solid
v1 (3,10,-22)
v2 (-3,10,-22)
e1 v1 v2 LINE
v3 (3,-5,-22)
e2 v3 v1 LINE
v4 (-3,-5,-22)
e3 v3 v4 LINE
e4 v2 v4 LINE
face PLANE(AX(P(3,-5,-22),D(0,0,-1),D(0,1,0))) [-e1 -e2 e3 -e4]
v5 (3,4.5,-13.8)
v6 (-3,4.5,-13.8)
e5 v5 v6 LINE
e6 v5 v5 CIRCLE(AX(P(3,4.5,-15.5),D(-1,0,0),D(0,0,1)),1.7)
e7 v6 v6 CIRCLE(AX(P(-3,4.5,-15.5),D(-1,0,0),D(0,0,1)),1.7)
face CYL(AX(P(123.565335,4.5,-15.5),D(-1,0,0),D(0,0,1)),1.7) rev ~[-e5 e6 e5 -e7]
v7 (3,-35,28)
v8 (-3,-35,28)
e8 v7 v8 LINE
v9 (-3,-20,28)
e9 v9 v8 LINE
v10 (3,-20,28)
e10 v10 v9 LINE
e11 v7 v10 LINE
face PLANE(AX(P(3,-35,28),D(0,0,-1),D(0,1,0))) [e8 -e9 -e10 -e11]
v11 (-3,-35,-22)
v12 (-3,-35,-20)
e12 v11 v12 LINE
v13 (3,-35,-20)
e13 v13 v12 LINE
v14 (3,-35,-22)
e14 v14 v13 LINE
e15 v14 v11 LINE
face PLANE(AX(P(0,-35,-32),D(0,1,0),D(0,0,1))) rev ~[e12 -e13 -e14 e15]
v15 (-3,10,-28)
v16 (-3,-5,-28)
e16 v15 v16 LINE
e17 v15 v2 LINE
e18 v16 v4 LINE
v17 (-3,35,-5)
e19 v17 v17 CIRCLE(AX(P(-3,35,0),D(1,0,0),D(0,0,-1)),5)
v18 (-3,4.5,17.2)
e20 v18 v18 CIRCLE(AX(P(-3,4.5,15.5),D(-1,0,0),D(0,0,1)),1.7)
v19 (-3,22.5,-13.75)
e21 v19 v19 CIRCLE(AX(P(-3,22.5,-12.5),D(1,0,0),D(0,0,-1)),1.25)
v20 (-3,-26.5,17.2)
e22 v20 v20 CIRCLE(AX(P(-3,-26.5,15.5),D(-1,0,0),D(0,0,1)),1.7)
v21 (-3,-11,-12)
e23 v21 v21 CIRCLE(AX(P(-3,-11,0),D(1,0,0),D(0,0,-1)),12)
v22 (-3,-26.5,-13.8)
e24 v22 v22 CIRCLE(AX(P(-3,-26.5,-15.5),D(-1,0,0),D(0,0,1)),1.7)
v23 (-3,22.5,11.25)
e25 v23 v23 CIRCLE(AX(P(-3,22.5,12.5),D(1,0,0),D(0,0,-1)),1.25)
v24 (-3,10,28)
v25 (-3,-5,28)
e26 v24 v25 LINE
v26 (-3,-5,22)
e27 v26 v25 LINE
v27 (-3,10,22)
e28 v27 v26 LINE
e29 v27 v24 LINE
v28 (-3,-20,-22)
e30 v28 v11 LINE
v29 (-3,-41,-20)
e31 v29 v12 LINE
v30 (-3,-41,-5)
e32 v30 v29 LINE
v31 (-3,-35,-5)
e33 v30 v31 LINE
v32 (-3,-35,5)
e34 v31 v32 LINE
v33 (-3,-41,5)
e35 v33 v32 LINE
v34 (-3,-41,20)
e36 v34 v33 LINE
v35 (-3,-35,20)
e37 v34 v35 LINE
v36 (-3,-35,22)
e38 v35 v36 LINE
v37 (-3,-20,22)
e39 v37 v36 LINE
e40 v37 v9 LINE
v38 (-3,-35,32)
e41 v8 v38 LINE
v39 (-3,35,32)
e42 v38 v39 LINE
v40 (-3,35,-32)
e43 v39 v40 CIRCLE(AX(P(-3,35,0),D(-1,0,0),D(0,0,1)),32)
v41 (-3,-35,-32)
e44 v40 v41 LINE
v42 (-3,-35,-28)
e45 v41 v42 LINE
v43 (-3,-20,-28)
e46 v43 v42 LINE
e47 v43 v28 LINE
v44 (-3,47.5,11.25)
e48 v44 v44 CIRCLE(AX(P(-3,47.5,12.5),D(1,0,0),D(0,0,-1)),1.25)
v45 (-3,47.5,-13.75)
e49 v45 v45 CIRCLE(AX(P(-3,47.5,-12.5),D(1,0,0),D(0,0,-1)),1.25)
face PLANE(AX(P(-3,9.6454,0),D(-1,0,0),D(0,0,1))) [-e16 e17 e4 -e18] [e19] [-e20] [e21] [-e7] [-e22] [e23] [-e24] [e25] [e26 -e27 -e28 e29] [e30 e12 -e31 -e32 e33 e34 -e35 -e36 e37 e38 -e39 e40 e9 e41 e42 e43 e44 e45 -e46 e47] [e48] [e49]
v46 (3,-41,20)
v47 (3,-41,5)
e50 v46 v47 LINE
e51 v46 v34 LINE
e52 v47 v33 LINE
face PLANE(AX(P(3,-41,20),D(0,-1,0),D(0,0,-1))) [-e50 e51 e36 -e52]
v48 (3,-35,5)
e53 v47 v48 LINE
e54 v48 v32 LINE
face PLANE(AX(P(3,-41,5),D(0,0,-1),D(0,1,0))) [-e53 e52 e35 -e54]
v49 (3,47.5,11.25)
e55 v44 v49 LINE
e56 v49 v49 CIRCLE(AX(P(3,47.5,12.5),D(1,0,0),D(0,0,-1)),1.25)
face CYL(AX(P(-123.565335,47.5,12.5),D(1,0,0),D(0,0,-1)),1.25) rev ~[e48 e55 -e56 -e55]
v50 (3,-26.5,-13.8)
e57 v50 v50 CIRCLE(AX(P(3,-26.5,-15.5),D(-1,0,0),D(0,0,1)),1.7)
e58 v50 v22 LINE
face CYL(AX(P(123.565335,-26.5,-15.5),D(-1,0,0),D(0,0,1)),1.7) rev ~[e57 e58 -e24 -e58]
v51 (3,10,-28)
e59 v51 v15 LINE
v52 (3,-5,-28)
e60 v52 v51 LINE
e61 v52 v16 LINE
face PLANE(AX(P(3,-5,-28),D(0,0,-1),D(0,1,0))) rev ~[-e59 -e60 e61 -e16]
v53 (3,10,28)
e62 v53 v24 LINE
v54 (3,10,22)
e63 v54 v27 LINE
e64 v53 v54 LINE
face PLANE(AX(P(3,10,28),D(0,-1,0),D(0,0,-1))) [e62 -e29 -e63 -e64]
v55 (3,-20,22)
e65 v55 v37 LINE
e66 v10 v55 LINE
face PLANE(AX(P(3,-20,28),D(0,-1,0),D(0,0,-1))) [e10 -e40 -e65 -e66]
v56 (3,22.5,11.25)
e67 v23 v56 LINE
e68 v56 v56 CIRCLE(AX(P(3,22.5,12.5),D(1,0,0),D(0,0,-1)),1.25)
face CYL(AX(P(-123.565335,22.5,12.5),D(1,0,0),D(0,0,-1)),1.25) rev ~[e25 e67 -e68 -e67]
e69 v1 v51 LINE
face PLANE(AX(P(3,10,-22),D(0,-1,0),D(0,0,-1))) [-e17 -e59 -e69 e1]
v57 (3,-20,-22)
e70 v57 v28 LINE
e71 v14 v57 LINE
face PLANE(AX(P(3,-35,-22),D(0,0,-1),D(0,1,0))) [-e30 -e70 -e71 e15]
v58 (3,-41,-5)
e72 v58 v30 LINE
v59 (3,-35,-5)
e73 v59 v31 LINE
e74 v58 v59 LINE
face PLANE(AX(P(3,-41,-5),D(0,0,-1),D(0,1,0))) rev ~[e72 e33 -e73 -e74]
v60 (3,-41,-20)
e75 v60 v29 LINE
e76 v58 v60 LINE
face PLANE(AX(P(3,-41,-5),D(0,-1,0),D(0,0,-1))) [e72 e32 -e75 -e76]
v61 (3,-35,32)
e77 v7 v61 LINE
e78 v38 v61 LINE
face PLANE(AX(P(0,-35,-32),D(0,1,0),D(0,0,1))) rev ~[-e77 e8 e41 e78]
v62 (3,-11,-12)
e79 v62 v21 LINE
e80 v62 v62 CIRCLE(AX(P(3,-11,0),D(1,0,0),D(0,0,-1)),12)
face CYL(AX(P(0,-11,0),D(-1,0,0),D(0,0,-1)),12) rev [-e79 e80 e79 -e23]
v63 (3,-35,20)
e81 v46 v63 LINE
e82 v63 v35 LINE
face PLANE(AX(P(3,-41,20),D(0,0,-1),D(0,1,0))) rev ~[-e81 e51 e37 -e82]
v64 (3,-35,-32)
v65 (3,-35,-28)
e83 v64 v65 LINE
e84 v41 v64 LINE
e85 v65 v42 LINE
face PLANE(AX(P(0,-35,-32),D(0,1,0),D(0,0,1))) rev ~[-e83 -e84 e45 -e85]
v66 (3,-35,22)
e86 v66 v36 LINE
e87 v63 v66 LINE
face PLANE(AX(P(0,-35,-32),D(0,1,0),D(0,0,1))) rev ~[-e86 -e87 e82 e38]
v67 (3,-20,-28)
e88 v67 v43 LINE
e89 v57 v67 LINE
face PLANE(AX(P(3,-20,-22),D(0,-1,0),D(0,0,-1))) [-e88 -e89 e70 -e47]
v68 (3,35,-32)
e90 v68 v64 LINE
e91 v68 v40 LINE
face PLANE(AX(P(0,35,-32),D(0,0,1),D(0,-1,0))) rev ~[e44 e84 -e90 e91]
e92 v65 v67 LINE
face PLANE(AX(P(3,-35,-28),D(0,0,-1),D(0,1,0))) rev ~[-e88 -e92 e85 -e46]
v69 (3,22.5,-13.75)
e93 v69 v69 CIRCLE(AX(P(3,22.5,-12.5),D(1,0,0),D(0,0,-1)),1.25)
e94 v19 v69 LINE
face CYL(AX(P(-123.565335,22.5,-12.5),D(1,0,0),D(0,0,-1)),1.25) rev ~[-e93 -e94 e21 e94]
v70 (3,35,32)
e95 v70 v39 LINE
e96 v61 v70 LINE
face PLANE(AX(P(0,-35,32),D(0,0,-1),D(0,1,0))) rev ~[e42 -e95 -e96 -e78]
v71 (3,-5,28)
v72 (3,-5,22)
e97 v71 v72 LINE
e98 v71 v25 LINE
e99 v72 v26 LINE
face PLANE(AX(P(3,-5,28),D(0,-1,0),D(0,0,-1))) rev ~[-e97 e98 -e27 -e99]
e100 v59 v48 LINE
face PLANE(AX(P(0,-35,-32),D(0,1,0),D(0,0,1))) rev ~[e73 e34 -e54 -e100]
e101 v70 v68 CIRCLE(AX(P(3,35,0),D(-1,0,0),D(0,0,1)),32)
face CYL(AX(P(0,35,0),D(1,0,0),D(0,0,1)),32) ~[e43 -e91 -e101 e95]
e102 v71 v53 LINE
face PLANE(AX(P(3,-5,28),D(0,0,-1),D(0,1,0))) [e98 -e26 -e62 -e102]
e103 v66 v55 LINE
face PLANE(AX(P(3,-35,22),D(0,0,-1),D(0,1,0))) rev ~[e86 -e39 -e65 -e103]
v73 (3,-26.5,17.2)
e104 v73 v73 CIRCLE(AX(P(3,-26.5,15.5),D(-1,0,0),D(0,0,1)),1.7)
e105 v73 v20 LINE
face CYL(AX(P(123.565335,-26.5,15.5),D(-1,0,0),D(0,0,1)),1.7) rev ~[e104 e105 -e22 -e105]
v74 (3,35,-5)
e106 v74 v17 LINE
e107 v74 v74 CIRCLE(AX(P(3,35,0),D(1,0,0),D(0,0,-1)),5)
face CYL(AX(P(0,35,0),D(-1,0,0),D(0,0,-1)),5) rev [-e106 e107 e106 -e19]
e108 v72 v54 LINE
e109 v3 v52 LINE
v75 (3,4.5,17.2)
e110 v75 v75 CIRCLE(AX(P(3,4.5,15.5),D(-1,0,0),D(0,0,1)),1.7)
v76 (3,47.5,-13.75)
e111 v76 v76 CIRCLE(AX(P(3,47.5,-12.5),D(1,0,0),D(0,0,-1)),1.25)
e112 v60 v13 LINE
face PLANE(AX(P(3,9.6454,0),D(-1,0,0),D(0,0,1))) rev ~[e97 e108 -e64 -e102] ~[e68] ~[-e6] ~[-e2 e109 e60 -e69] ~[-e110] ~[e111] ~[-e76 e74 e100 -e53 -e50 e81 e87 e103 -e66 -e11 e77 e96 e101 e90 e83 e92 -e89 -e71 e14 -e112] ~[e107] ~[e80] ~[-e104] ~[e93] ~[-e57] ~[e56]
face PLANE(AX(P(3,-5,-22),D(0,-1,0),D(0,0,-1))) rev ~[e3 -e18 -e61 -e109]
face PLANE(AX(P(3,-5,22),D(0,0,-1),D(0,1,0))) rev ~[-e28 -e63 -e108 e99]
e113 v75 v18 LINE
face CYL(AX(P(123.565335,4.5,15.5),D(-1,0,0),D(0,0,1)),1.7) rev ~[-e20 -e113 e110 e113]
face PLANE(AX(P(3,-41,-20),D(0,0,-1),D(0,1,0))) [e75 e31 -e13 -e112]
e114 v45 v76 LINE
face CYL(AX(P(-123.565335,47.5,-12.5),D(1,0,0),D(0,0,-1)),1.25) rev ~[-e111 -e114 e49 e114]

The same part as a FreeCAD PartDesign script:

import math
import FreeCAD as App
import Part
import Sketcher
from FreeCAD import Vector
Q = App.Units.Quantity

doc = App.newDocument("Part")
params = doc.addObject("Spreadsheet::Sheet", "Params")
for row, (alias, value) in enumerate([
    ("sketch1_diameter", "24 mm"),
    ("sketch1_diameter2", "10 mm"),
    ("sketch1_radius", "32 mm"),
    ("sketch1_width", "70 mm"),
    ("pad1_length", "6 mm"),
    ("sketch2_diameter", "3.4 mm"),
    ("hole_diameter", "3.4 mm"),
    ("sketch3_diameter", "2.5 mm"),
    ("hole2_diameter", "2.5 mm"),
    ("sketch4_width", "15 mm"),
    ("sketch4_height", "6 mm"),
    ("sketch5_width", "6 mm"),
    ("sketch5_height", "15 mm"),
    ("pad2_length", "6 mm"),
], start=1):
    params.set(f"A{row}", alias)
    params.set(f"B{row}", "=" + value)
    params.setAlias(f"B{row}", alias)

body = doc.addObject("PartDesign::Body", "Body")

# Sketch on YZ plane
sketch1 = body.newObject("Sketcher::SketchObject", "Sketch")
sketch1.AttachmentSupport = (doc.getObject("YZ_Plane"), [""])
sketch1.MapMode = "FlatFace"
sketch1.addGeometry([
    Part.LineSegment(Vector(35, 32, 0), Vector(-35, 32, 0)),  # 0
    Part.LineSegment(Vector(-35, 32, 0), Vector(-35, -32, 0)),  # 1
    Part.LineSegment(Vector(-35, -32, 0), Vector(35, -32, 0)),  # 2
    Part.ArcOfCircle(Part.Circle(Vector(35, 0, 0), Vector(0, 0, 1), 32), math.radians(-90), math.radians(90)),  # 3
    Part.Circle(Vector(-11, 0, 0), Vector(0, 0, 1), 12),  # 4
    Part.Circle(Vector(35, 0, 0), Vector(0, 0, 1), 5),  # 5
], False)
sketch1.addConstraint([
    Sketcher.Constraint("Coincident", 0, 2, 1, 1),
    Sketcher.Constraint("Coincident", 1, 2, 2, 1),
    Sketcher.Constraint("Tangent", 2, 2, 3, 1),
    Sketcher.Constraint("Tangent", 3, 2, 0, 1),
    Sketcher.Constraint("Horizontal", 0),
    Sketcher.Constraint("Vertical", 1),
    Sketcher.Constraint("Horizontal", 2),
    Sketcher.Constraint("Coincident", 5, 3, 3, 3),
    Sketcher.Constraint("Symmetric", 0, 2, 2, 2, -1, 1),
    Sketcher.Constraint("PointOnObject", 4, 3, -1),
    Sketcher.Constraint("Diameter", 4, Q("24 mm")),
    Sketcher.Constraint("Diameter", 5, Q("10 mm")),
    Sketcher.Constraint("Radius", 3, Q("32 mm")),
    Sketcher.Constraint("DistanceX", 0, 2, 0, 1, Q("70 mm")),
    Sketcher.Constraint("DistanceX", 4, 3, -1, 1, Q("11 mm")),
])
sketch1.setExpression("Constraints[10]", "Params.sketch1_diameter")
sketch1.setExpression("Constraints[11]", "Params.sketch1_diameter2")
sketch1.setExpression("Constraints[12]", "Params.sketch1_radius")
sketch1.setExpression("Constraints[13]", "Params.sketch1_width")
pad1 = body.newObject("PartDesign::Pad", "Pad")
pad1.Profile = sketch1
pad1.setExpression("Length", "Params.pad1_length")
pad1.Midplane = True

# Sketch on YZ plane
sketch2 = body.newObject("Sketcher::SketchObject", "Sketch001")
sketch2.AttachmentSupport = (doc.getObject("YZ_Plane"), [""])
sketch2.MapMode = "FlatFace"
sketch2.AttachmentOffset = App.Placement(Vector(0, 0, 3), App.Rotation())
sketch2.addGeometry([
    Part.Circle(Vector(4.5, 15.5, 0), Vector(0, 0, 1), 1.7),
    Part.Circle(Vector(-26.5, 15.5, 0), Vector(0, 0, 1), 1.7),
    Part.Circle(Vector(-26.5, -15.5, 0), Vector(0, 0, 1), 1.7),
    Part.Circle(Vector(4.5, -15.5, 0), Vector(0, 0, 1), 1.7),
], False)
sketch2.addConstraint([
    Sketcher.Constraint("Equal", 0, 1),
    Sketcher.Constraint("Equal", 1, 2),
    Sketcher.Constraint("Equal", 2, 3),
    Sketcher.Constraint("Symmetric", 1, 3, 2, 3, -1),
    Sketcher.Constraint("Symmetric", 0, 3, 3, 3, -1),
    Sketcher.Constraint("Horizontal", 0, 3, 1, 3),
    Sketcher.Constraint("Diameter", 0, Q("3.4 mm")),
    Sketcher.Constraint("DistanceX", 1, 3, 0, 3, Q("31 mm")),
    Sketcher.Constraint("DistanceY", 2, 3, 1, 3, Q("31 mm")),
    Sketcher.Constraint("DistanceX", -1, 1, 0, 3, Q("4.5 mm")),
])
sketch2.setExpression("Constraints[6]", "Params.sketch2_diameter")
doc.recompute()
hole = body.newObject("PartDesign::Hole", "Hole")
hole.Profile = sketch2
hole.ThreadType = "None"
hole.setExpression("Diameter", "Params.hole_diameter")
hole.DepthType = "ThroughAll"

# Sketch on YZ plane
sketch3 = body.newObject("Sketcher::SketchObject", "Sketch002")
sketch3.AttachmentSupport = (doc.getObject("YZ_Plane"), [""])
sketch3.MapMode = "FlatFace"
sketch3.AttachmentOffset = App.Placement(Vector(0, 0, -3), App.Rotation())
sketch3.addGeometry([
    Part.Circle(Vector(22.5, -12.5, 0), Vector(0, 0, 1), 1.25),
    Part.Circle(Vector(47.5, -12.5, 0), Vector(0, 0, 1), 1.25),
    Part.Circle(Vector(47.5, 12.5, 0), Vector(0, 0, 1), 1.25),
    Part.Circle(Vector(22.5, 12.5, 0), Vector(0, 0, 1), 1.25),
], False)
sketch3.addConstraint([
    Sketcher.Constraint("Equal", 0, 1),
    Sketcher.Constraint("Equal", 1, 2),
    Sketcher.Constraint("Equal", 2, 3),
    Sketcher.Constraint("Symmetric", 1, 3, 2, 3, -1),
    Sketcher.Constraint("Symmetric", 0, 3, 3, 3, -1),
    Sketcher.Constraint("Horizontal", 0, 3, 1, 3),
    Sketcher.Constraint("Diameter", 0, Q("2.5 mm")),
    Sketcher.Constraint("DistanceX", 0, 3, 1, 3, Q("25 mm")),
    Sketcher.Constraint("DistanceY", 1, 3, 2, 3, Q("25 mm")),
    Sketcher.Constraint("DistanceX", -1, 1, 0, 3, Q("22.5 mm")),
])
sketch3.setExpression("Constraints[6]", "Params.sketch3_diameter")
doc.recompute()
hole2 = body.newObject("PartDesign::Hole", "Hole001")
hole2.Profile = sketch3
hole2.ThreadType = "None"
hole2.setExpression("Diameter", "Params.hole2_diameter")
hole2.DepthType = "ThroughAll"
hole2.Reversed = True

# Sketch on YZ plane
sketch4 = body.newObject("Sketcher::SketchObject", "Sketch003")
sketch4.AttachmentSupport = (doc.getObject("YZ_Plane"), [""])
sketch4.MapMode = "FlatFace"
sketch4.AttachmentOffset = App.Placement(Vector(0, 0, 3), App.Rotation())
sketch4.addGeometry([
    Part.LineSegment(Vector(10, 28, 0), Vector(-5, 28, 0)),  # 0
    Part.LineSegment(Vector(-5, 28, 0), Vector(-5, 22, 0)),  # 1
    Part.LineSegment(Vector(-5, 22, 0), Vector(10, 22, 0)),  # 2
    Part.LineSegment(Vector(10, 22, 0), Vector(10, 28, 0)),  # 3
    Part.LineSegment(Vector(-20, 28, 0), Vector(-35, 28, 0)),  # 4
    Part.LineSegment(Vector(-35, 28, 0), Vector(-35, 22, 0)),  # 5
    Part.LineSegment(Vector(-35, 22, 0), Vector(-20, 22, 0)),  # 6
    Part.LineSegment(Vector(-20, 22, 0), Vector(-20, 28, 0)),  # 7
    Part.LineSegment(Vector(-20, -22, 0), Vector(-35, -22, 0)),  # 8
    Part.LineSegment(Vector(-35, -22, 0), Vector(-35, -28, 0)),  # 9
    Part.LineSegment(Vector(-35, -28, 0), Vector(-20, -28, 0)),  # 10
    Part.LineSegment(Vector(-20, -28, 0), Vector(-20, -22, 0)),  # 11
    Part.LineSegment(Vector(10, -22, 0), Vector(-5, -22, 0)),  # 12
    Part.LineSegment(Vector(-5, -22, 0), Vector(-5, -28, 0)),  # 13
    Part.LineSegment(Vector(-5, -28, 0), Vector(10, -28, 0)),  # 14
    Part.LineSegment(Vector(10, -28, 0), Vector(10, -22, 0)),  # 15
], False)
sketch4.addConstraint([
    Sketcher.Constraint("Coincident", 0, 2, 1, 1),
    Sketcher.Constraint("Coincident", 1, 2, 2, 1),
    Sketcher.Constraint("Coincident", 2, 2, 3, 1),
    Sketcher.Constraint("Coincident", 3, 2, 0, 1),
    Sketcher.Constraint("Coincident", 4, 2, 5, 1),
    Sketcher.Constraint("Coincident", 5, 2, 6, 1),
    Sketcher.Constraint("Coincident", 6, 2, 7, 1),
    Sketcher.Constraint("Coincident", 7, 2, 4, 1),
    Sketcher.Constraint("Coincident", 8, 2, 9, 1),
    Sketcher.Constraint("Coincident", 9, 2, 10, 1),
    Sketcher.Constraint("Coincident", 10, 2, 11, 1),
    Sketcher.Constraint("Coincident", 11, 2, 8, 1),
    Sketcher.Constraint("Coincident", 12, 2, 13, 1),
    Sketcher.Constraint("Coincident", 13, 2, 14, 1),
    Sketcher.Constraint("Coincident", 14, 2, 15, 1),
    Sketcher.Constraint("Coincident", 15, 2, 12, 1),
    Sketcher.Constraint("Horizontal", 0),
    Sketcher.Constraint("Vertical", 1),
    Sketcher.Constraint("Horizontal", 2),
    Sketcher.Constraint("Vertical", 3),
    Sketcher.Constraint("Horizontal", 4),
    Sketcher.Constraint("Vertical", 5),
    Sketcher.Constraint("Horizontal", 6),
    Sketcher.Constraint("Vertical", 7),
    Sketcher.Constraint("Horizontal", 8),
    Sketcher.Constraint("Vertical", 9),
    Sketcher.Constraint("Horizontal", 10),
    Sketcher.Constraint("Vertical", 11),
    Sketcher.Constraint("Horizontal", 12),
    Sketcher.Constraint("Vertical", 13),
    Sketcher.Constraint("Horizontal", 14),
    Sketcher.Constraint("Vertical", 15),
    Sketcher.Constraint("Symmetric", 5, 2, 8, 2, -1),
    Sketcher.Constraint("Symmetric", 7, 2, 10, 2, -1),
    Sketcher.Constraint("Symmetric", 1, 2, 12, 2, -1),
    Sketcher.Constraint("Symmetric", 3, 2, 14, 2, -1),
    Sketcher.Constraint("Horizontal", 3, 2, 4, 2),
    Sketcher.Constraint("Horizontal", 2, 2, 5, 2),
    Sketcher.Constraint("Equal", 2, 4),
    Sketcher.Constraint("DistanceX", 0, 2, 0, 1, Q("15 mm")),
    Sketcher.Constraint("DistanceY", 1, 2, 1, 1, Q("6 mm")),
    Sketcher.Constraint("DistanceX", 0, 2, -1, 1, Q("5 mm")),
    Sketcher.Constraint("DistanceY", -1, 1, 0, 2, Q("28 mm")),
    Sketcher.Constraint("DistanceX", 4, 2, -1, 1, Q("35 mm")),
])
sketch4.setExpression("Constraints[39]", "Params.sketch4_width")
sketch4.setExpression("Constraints[40]", "Params.sketch4_height")
pocket1 = body.newObject("PartDesign::Pocket", "Pocket")
pocket1.Profile = sketch4
pocket1.Type = "ThroughAll"

# Sketch on YZ plane
sketch5 = body.newObject("Sketcher::SketchObject", "Sketch004")
sketch5.AttachmentSupport = (doc.getObject("YZ_Plane"), [""])
sketch5.MapMode = "FlatFace"
sketch5.AttachmentOffset = App.Placement(Vector(0, 0, 3), App.Rotation())
sketch5.addGeometry([
    Part.LineSegment(Vector(-35, 20, 0), Vector(-41, 20, 0)),  # 0
    Part.LineSegment(Vector(-41, 20, 0), Vector(-41, 5, 0)),  # 1
    Part.LineSegment(Vector(-41, 5, 0), Vector(-35, 5, 0)),  # 2
    Part.LineSegment(Vector(-35, 5, 0), Vector(-35, 20, 0)),  # 3
    Part.LineSegment(Vector(-35, -5, 0), Vector(-41, -5, 0)),  # 4
    Part.LineSegment(Vector(-41, -5, 0), Vector(-41, -20, 0)),  # 5
    Part.LineSegment(Vector(-41, -20, 0), Vector(-35, -20, 0)),  # 6
    Part.LineSegment(Vector(-35, -20, 0), Vector(-35, -5, 0)),  # 7
], False)
sketch5.addConstraint([
    Sketcher.Constraint("Coincident", 0, 2, 1, 1),
    Sketcher.Constraint("Coincident", 1, 2, 2, 1),
    Sketcher.Constraint("Coincident", 2, 2, 3, 1),
    Sketcher.Constraint("Coincident", 3, 2, 0, 1),
    Sketcher.Constraint("Coincident", 4, 2, 5, 1),
    Sketcher.Constraint("Coincident", 5, 2, 6, 1),
    Sketcher.Constraint("Coincident", 6, 2, 7, 1),
    Sketcher.Constraint("Coincident", 7, 2, 4, 1),
    Sketcher.Constraint("Horizontal", 0),
    Sketcher.Constraint("Vertical", 1),
    Sketcher.Constraint("Horizontal", 2),
    Sketcher.Constraint("Vertical", 3),
    Sketcher.Constraint("Horizontal", 4),
    Sketcher.Constraint("Vertical", 5),
    Sketcher.Constraint("Horizontal", 6),
    Sketcher.Constraint("Vertical", 7),
    Sketcher.Constraint("Symmetric", 1, 2, 4, 2, -1),
    Sketcher.Constraint("Symmetric", 3, 2, 6, 2, -1),
    Sketcher.Constraint("DistanceX", 0, 2, 0, 1, Q("6 mm")),
    Sketcher.Constraint("DistanceY", 1, 2, 1, 1, Q("15 mm")),
    Sketcher.Constraint("DistanceX", 0, 2, -1, 1, Q("41 mm")),
    Sketcher.Constraint("DistanceY", -1, 1, 0, 2, Q("20 mm")),
])
sketch5.setExpression("Constraints[18]", "Params.sketch5_width")
sketch5.setExpression("Constraints[19]", "Params.sketch5_height")
pad2 = body.newObject("PartDesign::Pad", "Pad001")
pad2.Profile = sketch5
pad2.setExpression("Length", "Params.pad2_length")
pad2.Reversed = True

doc.recompute()
